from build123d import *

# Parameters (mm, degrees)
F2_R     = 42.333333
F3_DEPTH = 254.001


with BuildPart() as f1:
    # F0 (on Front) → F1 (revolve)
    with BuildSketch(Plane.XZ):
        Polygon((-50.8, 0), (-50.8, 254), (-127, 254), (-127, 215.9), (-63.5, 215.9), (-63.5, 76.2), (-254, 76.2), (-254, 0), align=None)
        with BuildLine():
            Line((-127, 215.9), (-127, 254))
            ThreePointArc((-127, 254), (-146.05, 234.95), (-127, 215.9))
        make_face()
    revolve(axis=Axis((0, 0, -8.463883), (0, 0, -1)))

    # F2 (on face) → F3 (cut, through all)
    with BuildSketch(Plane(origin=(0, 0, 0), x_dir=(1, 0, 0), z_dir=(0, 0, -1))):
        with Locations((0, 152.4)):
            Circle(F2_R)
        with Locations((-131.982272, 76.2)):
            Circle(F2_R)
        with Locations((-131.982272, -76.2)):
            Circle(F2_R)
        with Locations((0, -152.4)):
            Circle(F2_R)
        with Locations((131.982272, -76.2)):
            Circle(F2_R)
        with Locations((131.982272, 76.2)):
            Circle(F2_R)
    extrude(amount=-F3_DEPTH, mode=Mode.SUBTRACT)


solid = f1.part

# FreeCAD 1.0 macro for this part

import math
import FreeCAD as App
import Part
import Sketcher
from FreeCAD import Vector
Q = App.Units.Quantity

doc = App.newDocument("Part")
body = doc.addObject("PartDesign::Body", "Body")

# Sketch on XZ plane
sketch1 = body.newObject("Sketcher::SketchObject", "Sketch")
sketch1.AttachmentSupport = (doc.getObject("XZ_Plane"), [""])
sketch1.MapMode = "FlatFace"
sketch1.addGeometry(Part.LineSegment(Vector(-254, 0, 0), Vector(-50.8, 0, 0)), False)
sketch1.addGeometry(Part.LineSegment(Vector(-50.8, 0, 0), Vector(-50.8, 254, 0)), False)
sketch1.addGeometry(Part.LineSegment(Vector(-50.8, 254, 0), Vector(-127, 254, 0)), False)
sketch1.addGeometry(Part.ArcOfCircle(Part.Circle(Vector(-127, 234.95, 0), Vector(0, 0, 1), 19.05), math.radians(90), math.radians(270)), False)
sketch1.addGeometry(Part.LineSegment(Vector(-127, 215.9, 0), Vector(-63.5, 215.9, 0)), False)
sketch1.addGeometry(Part.LineSegment(Vector(-63.5, 215.9, 0), Vector(-63.5, 76.2, 0)), False)
sketch1.addGeometry(Part.LineSegment(Vector(-63.5, 76.2, 0), Vector(-254, 76.2, 0)), False)
sketch1.addGeometry(Part.LineSegment(Vector(-254, 76.2, 0), Vector(-254, 0, 0)), False)
sketch1.addConstraint(Sketcher.Constraint("Coincident", 0, 2, 1, 1))
sketch1.addConstraint(Sketcher.Constraint("Coincident", 1, 2, 2, 1))
sketch1.addConstraint(Sketcher.Constraint("Tangent", 2, 2, 3, 1))
sketch1.addConstraint(Sketcher.Constraint("Tangent", 3, 2, 4, 1))
sketch1.addConstraint(Sketcher.Constraint("Coincident", 4, 2, 5, 1))
sketch1.addConstraint(Sketcher.Constraint("Coincident", 5, 2, 6, 1))
sketch1.addConstraint(Sketcher.Constraint("Coincident", 6, 2, 7, 1))
sketch1.addConstraint(Sketcher.Constraint("Coincident", 7, 2, 0, 1))
sketch1.addConstraint(Sketcher.Constraint("Horizontal", 0))
sketch1.addConstraint(Sketcher.Constraint("Vertical", 1))
sketch1.addConstraint(Sketcher.Constraint("Horizontal", 2))
sketch1.addConstraint(Sketcher.Constraint("Horizontal", 4))
sketch1.addConstraint(Sketcher.Constraint("Vertical", 5))
sketch1.addConstraint(Sketcher.Constraint("Horizontal", 6))
sketch1.addConstraint(Sketcher.Constraint("Vertical", 7))
sketch1.addConstraint(Sketcher.Constraint("PointOnObject", 0, 2, -1))
sketch1.addConstraint(Sketcher.Constraint("Equal", 2, 7))
sketch1.addConstraint(Sketcher.Constraint("DistanceX", 0, 1, 0, 2, Q("8 in")))
sketch1.addConstraint(Sketcher.Constraint("DistanceX", 2, 2, 2, 1, Q("3 in")))
sketch1.addConstraint(Sketcher.Constraint("DistanceY", 1, 1, 1, 2, Q("10 in")))
sketch1.addConstraint(Sketcher.Constraint("Radius", 3, Q("0.75 in")))
sketch1.addConstraint(Sketcher.Constraint("DistanceX", 4, 1, 4, 2, Q("2.5 in")))
sketch1.addConstraint(Sketcher.Constraint("DistanceX", 3, 3, -1, 1, Q("5 in")))
revolution = body.newObject("PartDesign::Revolution", "Revolution")
revolution.Profile = sketch1
revolution.ReferenceAxis = (sketch1, ["V_Axis"])
revolution.Angle = 360

# Sketch on XY plane
sketch2 = body.newObject("Sketcher::SketchObject", "Sketch001")
sketch2.AttachmentSupport = (doc.getObject("XY_Plane"), [""])
sketch2.MapMode = "FlatFace"
sketch2.addGeometry(Part.Circle(Vector(0, -152.4, 0), Vector(0, 0, 1), 42.333333), False)
sketch2.addGeometry(Part.Circle(Vector(-131.982272, -76.2, 0), Vector(0, 0, 1), 42.333333), False)
sketch2.addGeometry(Part.Circle(Vector(-131.982272, 76.2, 0), Vector(0, 0, 1), 42.333333), False)
sketch2.addGeometry(Part.Circle(Vector(0, 152.4, 0), Vector(0, 0, 1), 42.333333), False)
sketch2.addGeometry(Part.Circle(Vector(131.982272, 76.2, 0), Vector(0, 0, 1), 42.333333), False)
sketch2.addGeometry(Part.Circle(Vector(131.982272, -76.2, 0), Vector(0, 0, 1), 42.333333), False)
sketch2.addConstraint(Sketcher.Constraint("Equal", 0, 1))
sketch2.addConstraint(Sketcher.Constraint("Equal", 1, 2))
sketch2.addConstraint(Sketcher.Constraint("Equal", 2, 3))
sketch2.addConstraint(Sketcher.Constraint("Equal", 3, 4))
sketch2.addConstraint(Sketcher.Constraint("Equal", 4, 5))
sketch2.addConstraint(Sketcher.Constraint("Symmetric", 0, 3, 3, 3, -1, 1))
sketch2.addConstraint(Sketcher.Constraint("Symmetric", 1, 3, 4, 3, -1, 1))
sketch2.addConstraint(Sketcher.Constraint("Symmetric", 2, 3, 5, 3, -1, 1))
sketch2.addConstraint(Sketcher.Constraint("Symmetric", 2, 3, 4, 3, -2))
sketch2.addConstraint(Sketcher.Constraint("PointOnObject", 0, 3, -2))
sketch2.addConstraint(Sketcher.Constraint("DistanceY", 0, 3, -1, 1, Q("6 in")))
sketch2.addConstraint(Sketcher.Constraint("DistanceY", 1, 3, -1, 1, Q("3 in")))
sketch2.addConstraint(Sketcher.Constraint("Diameter", 0, 84.666666))
sketch2.addConstraint(Sketcher.Constraint("DistanceX", 1, 3, -1, 1, 131.982272))
pocket1 = body.newObject("PartDesign::Pocket", "Pocket")
pocket1.Profile = sketch2
pocket1.Type = "ThroughAll"
pocket1.Reversed = True

doc.recompute()
